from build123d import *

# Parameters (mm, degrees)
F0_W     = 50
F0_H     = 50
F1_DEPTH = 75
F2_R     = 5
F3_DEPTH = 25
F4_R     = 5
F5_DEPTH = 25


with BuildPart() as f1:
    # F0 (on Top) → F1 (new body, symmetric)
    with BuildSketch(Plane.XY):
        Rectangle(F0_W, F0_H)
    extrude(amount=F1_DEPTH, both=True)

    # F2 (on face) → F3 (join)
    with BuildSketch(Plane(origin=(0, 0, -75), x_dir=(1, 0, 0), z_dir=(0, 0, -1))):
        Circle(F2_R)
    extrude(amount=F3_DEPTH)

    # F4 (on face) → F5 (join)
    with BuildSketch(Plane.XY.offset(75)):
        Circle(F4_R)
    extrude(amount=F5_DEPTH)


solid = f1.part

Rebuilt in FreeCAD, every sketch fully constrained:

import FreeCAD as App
import Part
import Sketcher

V = App.Vector
Q = App.Units.Quantity


def add_polygon(sketch, points):
    """Adds a closed chain of lines whose ends are joined by coincident constraints."""
    first, n = sketch.GeometryCount, len(points)
    for a, b in zip(points, points[1:] + points[:1]):
        sketch.addGeometry(Part.LineSegment(App.Vector(*a, 0), App.Vector(*b, 0)), False)
    for i in range(n):
        sketch.addConstraint(Sketcher.Constraint("Coincident", first + i, 2, first + (i + 1) % n, 1))

doc = App.newDocument("Part")
body = doc.addObject("PartDesign::Body", "Body")

# Sketch on XY plane
sketch1 = doc.addObject("Sketcher::SketchObject", "Sketch")
body.addObject(sketch1)
sketch1.AttachmentSupport = (doc.XY_Plane, [""])
sketch1.MapMode = "FlatFace"
add_polygon(sketch1, [(-25, 25), (-25, -25), (25, -25), (25, 25)])  # lines 0-3
sketch1.addConstraint(Sketcher.Constraint("Vertical", 0))
sketch1.addConstraint(Sketcher.Constraint("Horizontal", 1))
sketch1.addConstraint(Sketcher.Constraint("Vertical", 2))
sketch1.addConstraint(Sketcher.Constraint("Horizontal", 3))
sketch1.addConstraint(Sketcher.Constraint("Symmetric", 0, 2, 2, 2, -1, 1))
sketch1.addConstraint(Sketcher.Constraint("Equal", 3, 0))
sketch1.addConstraint(Sketcher.Constraint("DistanceX", 1, 1, 1, 2, Q("50 mm")))
pad1 = doc.addObject("PartDesign::Pad", "Pad")
body.addObject(pad1)
pad1.Profile = sketch1
pad1.Length = 150
pad1.Midplane = True

# Sketch on XY plane
sketch2 = doc.addObject("Sketcher::SketchObject", "Sketch001")
body.addObject(sketch2)
sketch2.AttachmentSupport = (doc.XY_Plane, [""])
sketch2.MapMode = "FlatFace"
sketch2.AttachmentOffset = App.Placement(V(0, 0, -75), App.Rotation())
sketch2.addGeometry(Part.Circle(V(0, 0, 0), V(0, 0, 1), 5), False)
sketch2.addConstraint(Sketcher.Constraint("Coincident", 0, 3, -1, 1))
sketch2.addConstraint(Sketcher.Constraint("Diameter", 0, Q("10 mm")))
pad2 = doc.addObject("PartDesign::Pad", "Pad001")
body.addObject(pad2)
pad2.Profile = sketch2
pad2.Length = 25
pad2.Reversed = True

# Sketch on XY plane
sketch3 = doc.addObject("Sketcher::SketchObject", "Sketch002")
body.addObject(sketch3)
sketch3.AttachmentSupport = (doc.XY_Plane, [""])
sketch3.MapMode = "FlatFace"
sketch3.AttachmentOffset = App.Placement(V(0, 0, 75), App.Rotation())
sketch3.addGeometry(Part.Circle(V(0, 0, 0), V(0, 0, 1), 5), False)
sketch3.addConstraint(Sketcher.Constraint("Coincident", 0, 3, -1, 1))
sketch3.addConstraint(Sketcher.Constraint("Diameter", 0, Q("10 mm")))
pad3 = doc.addObject("PartDesign::Pad", "Pad002")
body.addObject(pad3)
pad3.Profile = sketch3
pad3.Length = 25

doc.recompute()
